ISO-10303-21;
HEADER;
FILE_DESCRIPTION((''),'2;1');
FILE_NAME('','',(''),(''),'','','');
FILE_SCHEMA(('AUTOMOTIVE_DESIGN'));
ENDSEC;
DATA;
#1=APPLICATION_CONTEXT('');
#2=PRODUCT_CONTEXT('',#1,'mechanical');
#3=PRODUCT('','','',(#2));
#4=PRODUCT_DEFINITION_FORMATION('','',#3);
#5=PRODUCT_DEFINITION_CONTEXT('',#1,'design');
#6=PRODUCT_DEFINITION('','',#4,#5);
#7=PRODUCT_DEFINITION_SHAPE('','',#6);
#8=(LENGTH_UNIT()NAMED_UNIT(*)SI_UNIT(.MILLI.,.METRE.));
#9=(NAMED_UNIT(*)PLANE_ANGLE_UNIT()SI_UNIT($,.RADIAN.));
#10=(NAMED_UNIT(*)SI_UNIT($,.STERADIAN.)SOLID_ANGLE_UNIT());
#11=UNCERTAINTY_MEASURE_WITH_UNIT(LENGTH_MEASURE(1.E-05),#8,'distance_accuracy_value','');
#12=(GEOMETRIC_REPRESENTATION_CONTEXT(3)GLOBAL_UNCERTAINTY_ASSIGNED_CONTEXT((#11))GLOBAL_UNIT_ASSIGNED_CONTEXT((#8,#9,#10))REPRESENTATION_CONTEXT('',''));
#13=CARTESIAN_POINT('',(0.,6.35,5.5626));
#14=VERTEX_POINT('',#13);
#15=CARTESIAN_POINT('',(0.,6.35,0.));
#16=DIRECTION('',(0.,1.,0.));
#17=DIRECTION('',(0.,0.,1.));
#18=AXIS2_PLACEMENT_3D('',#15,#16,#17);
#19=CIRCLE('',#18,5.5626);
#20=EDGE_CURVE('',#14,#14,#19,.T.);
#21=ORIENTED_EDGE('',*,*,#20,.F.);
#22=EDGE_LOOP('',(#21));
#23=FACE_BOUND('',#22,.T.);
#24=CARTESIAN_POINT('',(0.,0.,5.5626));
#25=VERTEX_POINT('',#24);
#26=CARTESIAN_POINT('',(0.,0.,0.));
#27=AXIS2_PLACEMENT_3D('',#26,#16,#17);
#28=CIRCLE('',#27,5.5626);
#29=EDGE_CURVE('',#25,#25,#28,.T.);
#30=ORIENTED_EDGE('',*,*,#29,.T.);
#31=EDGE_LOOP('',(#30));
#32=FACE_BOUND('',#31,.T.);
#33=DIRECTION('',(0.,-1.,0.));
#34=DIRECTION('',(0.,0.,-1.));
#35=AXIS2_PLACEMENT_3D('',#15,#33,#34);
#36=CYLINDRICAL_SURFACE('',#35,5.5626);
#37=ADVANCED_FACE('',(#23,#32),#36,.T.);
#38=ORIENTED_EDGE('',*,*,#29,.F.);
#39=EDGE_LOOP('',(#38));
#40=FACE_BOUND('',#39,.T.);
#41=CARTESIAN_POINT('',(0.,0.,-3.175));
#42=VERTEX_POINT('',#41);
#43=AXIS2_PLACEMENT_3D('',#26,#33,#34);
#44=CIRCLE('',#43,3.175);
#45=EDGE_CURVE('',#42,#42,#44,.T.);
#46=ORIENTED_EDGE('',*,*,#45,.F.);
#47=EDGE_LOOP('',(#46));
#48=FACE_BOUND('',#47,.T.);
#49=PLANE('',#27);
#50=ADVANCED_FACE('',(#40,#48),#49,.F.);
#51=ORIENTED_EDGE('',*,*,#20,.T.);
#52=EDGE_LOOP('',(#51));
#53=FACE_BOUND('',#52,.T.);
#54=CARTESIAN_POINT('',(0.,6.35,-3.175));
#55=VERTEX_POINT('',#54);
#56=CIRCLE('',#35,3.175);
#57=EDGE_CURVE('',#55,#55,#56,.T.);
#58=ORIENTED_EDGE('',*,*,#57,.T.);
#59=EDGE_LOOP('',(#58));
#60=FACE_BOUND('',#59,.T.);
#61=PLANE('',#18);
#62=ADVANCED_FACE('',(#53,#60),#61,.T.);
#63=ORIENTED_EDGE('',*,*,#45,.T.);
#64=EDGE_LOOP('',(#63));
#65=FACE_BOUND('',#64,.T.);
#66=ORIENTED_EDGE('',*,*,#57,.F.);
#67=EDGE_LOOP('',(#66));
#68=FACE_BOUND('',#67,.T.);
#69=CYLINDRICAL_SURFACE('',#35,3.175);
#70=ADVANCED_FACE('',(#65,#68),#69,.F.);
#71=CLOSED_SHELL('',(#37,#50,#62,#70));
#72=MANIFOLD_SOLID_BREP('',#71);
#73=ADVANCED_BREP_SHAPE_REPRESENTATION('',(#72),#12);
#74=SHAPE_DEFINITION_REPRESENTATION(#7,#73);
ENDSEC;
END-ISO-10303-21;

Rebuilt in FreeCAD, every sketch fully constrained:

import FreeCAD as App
import Part
import Sketcher
from FreeCAD import Vector
Q = App.Units.Quantity

doc = App.newDocument("Part")
body = doc.addObject("PartDesign::Body", "Body")

# Sketch on XZ plane
sketch1 = doc.addObject("Sketcher::SketchObject", "Sketch")
body.addObject(sketch1)
sketch1.AttachmentSupport = (doc.XZ_Plane, [""])
sketch1.MapMode = "FlatFace"
sketch1.addGeometry(Part.Circle(Vector(0, 0, 0), Vector(0, 0, 1), 6), False)
sketch1.addConstraint(Sketcher.Constraint("Coincident", 0, 3, -1, 1))
sketch1.addConstraint(Sketcher.Constraint("Diameter", 0, Q("0.438 in")))
pad1 = doc.addObject("PartDesign::Pad", "Pad")
body.addObject(pad1)
pad1.Profile = sketch1
pad1.Length = Q("0.25 in")
pad1.Reversed = True

# Sketch on XZ plane
sketch2 = doc.addObject("Sketcher::SketchObject", "Sketch001")
body.addObject(sketch2)
sketch2.AttachmentSupport = (doc.XZ_Plane, [""])
sketch2.MapMode = "FlatFace"
sketch2.addGeometry(Part.Circle(Vector(0, 0, 0), Vector(0, 0, 1), 3.2), False)
sketch2.addConstraint(Sketcher.Constraint("Coincident", 0, 3, -1, 1))
sketch2.addConstraint(Sketcher.Constraint("Diameter", 0, Q("0.25 in")))
pocket1 = doc.addObject("PartDesign::Pocket", "Pocket")
body.addObject(pocket1)
pocket1.Profile = sketch2
pocket1.Length = Q("0.25 in")

doc.recompute()
